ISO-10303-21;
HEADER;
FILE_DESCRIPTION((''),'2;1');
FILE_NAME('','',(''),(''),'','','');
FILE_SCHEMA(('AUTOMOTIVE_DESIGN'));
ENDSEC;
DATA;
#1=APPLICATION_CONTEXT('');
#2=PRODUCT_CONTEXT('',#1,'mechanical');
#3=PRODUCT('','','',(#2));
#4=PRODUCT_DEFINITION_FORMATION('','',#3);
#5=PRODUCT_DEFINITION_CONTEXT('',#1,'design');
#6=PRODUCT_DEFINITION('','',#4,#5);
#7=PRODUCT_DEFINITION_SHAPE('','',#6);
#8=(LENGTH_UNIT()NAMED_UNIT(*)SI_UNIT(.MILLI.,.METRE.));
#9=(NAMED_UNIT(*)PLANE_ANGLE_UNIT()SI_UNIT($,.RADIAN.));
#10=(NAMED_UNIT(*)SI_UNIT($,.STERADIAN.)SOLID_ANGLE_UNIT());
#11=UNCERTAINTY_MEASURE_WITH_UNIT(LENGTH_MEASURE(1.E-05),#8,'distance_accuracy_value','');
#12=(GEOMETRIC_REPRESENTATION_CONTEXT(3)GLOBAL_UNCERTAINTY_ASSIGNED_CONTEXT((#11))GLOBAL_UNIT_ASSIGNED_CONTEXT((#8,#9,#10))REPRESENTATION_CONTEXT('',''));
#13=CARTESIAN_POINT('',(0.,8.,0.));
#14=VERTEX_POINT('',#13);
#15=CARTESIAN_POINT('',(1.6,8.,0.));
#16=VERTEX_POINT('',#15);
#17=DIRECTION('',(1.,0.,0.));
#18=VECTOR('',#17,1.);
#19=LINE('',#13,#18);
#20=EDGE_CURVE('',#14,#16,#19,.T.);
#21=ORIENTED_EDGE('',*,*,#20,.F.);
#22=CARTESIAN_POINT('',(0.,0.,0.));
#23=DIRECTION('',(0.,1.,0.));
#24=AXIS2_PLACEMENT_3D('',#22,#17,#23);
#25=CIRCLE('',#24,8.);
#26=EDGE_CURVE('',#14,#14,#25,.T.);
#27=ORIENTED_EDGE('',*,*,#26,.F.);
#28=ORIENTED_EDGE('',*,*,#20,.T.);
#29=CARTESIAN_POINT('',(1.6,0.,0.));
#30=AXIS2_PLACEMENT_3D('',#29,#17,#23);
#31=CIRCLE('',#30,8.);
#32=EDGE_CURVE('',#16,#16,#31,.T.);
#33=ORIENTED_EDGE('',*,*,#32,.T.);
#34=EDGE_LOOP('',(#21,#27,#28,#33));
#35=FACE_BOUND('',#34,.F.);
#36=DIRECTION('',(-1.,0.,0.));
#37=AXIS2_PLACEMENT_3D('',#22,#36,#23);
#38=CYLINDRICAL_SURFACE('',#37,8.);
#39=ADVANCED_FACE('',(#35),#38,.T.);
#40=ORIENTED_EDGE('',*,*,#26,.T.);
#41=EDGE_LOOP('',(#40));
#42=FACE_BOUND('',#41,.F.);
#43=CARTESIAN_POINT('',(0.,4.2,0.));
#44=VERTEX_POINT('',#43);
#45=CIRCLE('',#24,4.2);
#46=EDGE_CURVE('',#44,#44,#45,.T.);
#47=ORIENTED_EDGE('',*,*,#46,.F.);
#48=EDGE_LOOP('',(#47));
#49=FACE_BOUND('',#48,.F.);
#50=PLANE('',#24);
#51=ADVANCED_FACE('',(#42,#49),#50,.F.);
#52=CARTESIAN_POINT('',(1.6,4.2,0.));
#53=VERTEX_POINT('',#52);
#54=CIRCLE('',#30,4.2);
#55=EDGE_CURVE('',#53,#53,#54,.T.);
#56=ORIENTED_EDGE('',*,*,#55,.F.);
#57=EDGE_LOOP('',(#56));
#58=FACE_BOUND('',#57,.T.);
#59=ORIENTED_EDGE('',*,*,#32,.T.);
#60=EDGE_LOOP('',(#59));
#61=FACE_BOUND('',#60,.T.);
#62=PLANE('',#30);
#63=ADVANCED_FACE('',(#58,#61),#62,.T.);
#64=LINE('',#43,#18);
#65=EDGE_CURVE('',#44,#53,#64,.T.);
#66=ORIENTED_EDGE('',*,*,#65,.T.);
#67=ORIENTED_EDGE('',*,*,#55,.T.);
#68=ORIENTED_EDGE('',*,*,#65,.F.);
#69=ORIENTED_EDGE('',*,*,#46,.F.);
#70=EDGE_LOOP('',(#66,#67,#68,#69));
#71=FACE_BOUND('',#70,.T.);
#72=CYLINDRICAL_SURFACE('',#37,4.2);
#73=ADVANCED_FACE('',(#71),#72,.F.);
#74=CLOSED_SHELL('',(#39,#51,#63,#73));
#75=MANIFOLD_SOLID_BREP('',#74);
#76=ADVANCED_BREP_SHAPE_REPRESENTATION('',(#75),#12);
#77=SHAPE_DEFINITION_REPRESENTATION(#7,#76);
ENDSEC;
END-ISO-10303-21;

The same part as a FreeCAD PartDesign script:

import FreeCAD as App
import Part
import Sketcher

V = App.Vector

doc = App.newDocument("Part")
params = doc.addObject("Spreadsheet::Sheet", "Params")
for row, (alias, value) in enumerate([
    ("sketch1_diameter", "16 mm"),
    ("sketch1_diameter2", "8.4 mm"),
    ("pad1_length", "1.6 mm"),
], start=1):
    params.set(f"A{row}", alias)
    params.set(f"B{row}", "=" + value)
    params.setAlias(f"B{row}", alias)

body = doc.addObject("PartDesign::Body", "Body")

# Sketch on YZ plane
sketch1 = body.newObject("Sketcher::SketchObject", "Sketch")
sketch1.AttachmentSupport = (doc.getObject("YZ_Plane"), [""])
sketch1.MapMode = "FlatFace"
sketch1.addGeometry([
    Part.Circle(V(0, 0, 0), V(0, 0, 1), 8),
    Part.Circle(V(0, 0, 0), V(0, 0, 1), 4.2),
], False)
sketch1.addConstraint([
    Sketcher.Constraint("Coincident", 0, 3, -1, 1),
    Sketcher.Constraint("Coincident", 1, 3, -1, 1),
    Sketcher.Constraint("Diameter", 0, 16.0),
    Sketcher.Constraint("Diameter", 1, 8.4),
])
sketch1.setExpression("Constraints[2]", "Params.sketch1_diameter")
sketch1.setExpression("Constraints[3]", "Params.sketch1_diameter2")
pad1 = body.newObject("PartDesign::Pad", "Pad")
pad1.Profile = sketch1
pad1.setExpression("Length", "Params.pad1_length")

doc.recompute()
